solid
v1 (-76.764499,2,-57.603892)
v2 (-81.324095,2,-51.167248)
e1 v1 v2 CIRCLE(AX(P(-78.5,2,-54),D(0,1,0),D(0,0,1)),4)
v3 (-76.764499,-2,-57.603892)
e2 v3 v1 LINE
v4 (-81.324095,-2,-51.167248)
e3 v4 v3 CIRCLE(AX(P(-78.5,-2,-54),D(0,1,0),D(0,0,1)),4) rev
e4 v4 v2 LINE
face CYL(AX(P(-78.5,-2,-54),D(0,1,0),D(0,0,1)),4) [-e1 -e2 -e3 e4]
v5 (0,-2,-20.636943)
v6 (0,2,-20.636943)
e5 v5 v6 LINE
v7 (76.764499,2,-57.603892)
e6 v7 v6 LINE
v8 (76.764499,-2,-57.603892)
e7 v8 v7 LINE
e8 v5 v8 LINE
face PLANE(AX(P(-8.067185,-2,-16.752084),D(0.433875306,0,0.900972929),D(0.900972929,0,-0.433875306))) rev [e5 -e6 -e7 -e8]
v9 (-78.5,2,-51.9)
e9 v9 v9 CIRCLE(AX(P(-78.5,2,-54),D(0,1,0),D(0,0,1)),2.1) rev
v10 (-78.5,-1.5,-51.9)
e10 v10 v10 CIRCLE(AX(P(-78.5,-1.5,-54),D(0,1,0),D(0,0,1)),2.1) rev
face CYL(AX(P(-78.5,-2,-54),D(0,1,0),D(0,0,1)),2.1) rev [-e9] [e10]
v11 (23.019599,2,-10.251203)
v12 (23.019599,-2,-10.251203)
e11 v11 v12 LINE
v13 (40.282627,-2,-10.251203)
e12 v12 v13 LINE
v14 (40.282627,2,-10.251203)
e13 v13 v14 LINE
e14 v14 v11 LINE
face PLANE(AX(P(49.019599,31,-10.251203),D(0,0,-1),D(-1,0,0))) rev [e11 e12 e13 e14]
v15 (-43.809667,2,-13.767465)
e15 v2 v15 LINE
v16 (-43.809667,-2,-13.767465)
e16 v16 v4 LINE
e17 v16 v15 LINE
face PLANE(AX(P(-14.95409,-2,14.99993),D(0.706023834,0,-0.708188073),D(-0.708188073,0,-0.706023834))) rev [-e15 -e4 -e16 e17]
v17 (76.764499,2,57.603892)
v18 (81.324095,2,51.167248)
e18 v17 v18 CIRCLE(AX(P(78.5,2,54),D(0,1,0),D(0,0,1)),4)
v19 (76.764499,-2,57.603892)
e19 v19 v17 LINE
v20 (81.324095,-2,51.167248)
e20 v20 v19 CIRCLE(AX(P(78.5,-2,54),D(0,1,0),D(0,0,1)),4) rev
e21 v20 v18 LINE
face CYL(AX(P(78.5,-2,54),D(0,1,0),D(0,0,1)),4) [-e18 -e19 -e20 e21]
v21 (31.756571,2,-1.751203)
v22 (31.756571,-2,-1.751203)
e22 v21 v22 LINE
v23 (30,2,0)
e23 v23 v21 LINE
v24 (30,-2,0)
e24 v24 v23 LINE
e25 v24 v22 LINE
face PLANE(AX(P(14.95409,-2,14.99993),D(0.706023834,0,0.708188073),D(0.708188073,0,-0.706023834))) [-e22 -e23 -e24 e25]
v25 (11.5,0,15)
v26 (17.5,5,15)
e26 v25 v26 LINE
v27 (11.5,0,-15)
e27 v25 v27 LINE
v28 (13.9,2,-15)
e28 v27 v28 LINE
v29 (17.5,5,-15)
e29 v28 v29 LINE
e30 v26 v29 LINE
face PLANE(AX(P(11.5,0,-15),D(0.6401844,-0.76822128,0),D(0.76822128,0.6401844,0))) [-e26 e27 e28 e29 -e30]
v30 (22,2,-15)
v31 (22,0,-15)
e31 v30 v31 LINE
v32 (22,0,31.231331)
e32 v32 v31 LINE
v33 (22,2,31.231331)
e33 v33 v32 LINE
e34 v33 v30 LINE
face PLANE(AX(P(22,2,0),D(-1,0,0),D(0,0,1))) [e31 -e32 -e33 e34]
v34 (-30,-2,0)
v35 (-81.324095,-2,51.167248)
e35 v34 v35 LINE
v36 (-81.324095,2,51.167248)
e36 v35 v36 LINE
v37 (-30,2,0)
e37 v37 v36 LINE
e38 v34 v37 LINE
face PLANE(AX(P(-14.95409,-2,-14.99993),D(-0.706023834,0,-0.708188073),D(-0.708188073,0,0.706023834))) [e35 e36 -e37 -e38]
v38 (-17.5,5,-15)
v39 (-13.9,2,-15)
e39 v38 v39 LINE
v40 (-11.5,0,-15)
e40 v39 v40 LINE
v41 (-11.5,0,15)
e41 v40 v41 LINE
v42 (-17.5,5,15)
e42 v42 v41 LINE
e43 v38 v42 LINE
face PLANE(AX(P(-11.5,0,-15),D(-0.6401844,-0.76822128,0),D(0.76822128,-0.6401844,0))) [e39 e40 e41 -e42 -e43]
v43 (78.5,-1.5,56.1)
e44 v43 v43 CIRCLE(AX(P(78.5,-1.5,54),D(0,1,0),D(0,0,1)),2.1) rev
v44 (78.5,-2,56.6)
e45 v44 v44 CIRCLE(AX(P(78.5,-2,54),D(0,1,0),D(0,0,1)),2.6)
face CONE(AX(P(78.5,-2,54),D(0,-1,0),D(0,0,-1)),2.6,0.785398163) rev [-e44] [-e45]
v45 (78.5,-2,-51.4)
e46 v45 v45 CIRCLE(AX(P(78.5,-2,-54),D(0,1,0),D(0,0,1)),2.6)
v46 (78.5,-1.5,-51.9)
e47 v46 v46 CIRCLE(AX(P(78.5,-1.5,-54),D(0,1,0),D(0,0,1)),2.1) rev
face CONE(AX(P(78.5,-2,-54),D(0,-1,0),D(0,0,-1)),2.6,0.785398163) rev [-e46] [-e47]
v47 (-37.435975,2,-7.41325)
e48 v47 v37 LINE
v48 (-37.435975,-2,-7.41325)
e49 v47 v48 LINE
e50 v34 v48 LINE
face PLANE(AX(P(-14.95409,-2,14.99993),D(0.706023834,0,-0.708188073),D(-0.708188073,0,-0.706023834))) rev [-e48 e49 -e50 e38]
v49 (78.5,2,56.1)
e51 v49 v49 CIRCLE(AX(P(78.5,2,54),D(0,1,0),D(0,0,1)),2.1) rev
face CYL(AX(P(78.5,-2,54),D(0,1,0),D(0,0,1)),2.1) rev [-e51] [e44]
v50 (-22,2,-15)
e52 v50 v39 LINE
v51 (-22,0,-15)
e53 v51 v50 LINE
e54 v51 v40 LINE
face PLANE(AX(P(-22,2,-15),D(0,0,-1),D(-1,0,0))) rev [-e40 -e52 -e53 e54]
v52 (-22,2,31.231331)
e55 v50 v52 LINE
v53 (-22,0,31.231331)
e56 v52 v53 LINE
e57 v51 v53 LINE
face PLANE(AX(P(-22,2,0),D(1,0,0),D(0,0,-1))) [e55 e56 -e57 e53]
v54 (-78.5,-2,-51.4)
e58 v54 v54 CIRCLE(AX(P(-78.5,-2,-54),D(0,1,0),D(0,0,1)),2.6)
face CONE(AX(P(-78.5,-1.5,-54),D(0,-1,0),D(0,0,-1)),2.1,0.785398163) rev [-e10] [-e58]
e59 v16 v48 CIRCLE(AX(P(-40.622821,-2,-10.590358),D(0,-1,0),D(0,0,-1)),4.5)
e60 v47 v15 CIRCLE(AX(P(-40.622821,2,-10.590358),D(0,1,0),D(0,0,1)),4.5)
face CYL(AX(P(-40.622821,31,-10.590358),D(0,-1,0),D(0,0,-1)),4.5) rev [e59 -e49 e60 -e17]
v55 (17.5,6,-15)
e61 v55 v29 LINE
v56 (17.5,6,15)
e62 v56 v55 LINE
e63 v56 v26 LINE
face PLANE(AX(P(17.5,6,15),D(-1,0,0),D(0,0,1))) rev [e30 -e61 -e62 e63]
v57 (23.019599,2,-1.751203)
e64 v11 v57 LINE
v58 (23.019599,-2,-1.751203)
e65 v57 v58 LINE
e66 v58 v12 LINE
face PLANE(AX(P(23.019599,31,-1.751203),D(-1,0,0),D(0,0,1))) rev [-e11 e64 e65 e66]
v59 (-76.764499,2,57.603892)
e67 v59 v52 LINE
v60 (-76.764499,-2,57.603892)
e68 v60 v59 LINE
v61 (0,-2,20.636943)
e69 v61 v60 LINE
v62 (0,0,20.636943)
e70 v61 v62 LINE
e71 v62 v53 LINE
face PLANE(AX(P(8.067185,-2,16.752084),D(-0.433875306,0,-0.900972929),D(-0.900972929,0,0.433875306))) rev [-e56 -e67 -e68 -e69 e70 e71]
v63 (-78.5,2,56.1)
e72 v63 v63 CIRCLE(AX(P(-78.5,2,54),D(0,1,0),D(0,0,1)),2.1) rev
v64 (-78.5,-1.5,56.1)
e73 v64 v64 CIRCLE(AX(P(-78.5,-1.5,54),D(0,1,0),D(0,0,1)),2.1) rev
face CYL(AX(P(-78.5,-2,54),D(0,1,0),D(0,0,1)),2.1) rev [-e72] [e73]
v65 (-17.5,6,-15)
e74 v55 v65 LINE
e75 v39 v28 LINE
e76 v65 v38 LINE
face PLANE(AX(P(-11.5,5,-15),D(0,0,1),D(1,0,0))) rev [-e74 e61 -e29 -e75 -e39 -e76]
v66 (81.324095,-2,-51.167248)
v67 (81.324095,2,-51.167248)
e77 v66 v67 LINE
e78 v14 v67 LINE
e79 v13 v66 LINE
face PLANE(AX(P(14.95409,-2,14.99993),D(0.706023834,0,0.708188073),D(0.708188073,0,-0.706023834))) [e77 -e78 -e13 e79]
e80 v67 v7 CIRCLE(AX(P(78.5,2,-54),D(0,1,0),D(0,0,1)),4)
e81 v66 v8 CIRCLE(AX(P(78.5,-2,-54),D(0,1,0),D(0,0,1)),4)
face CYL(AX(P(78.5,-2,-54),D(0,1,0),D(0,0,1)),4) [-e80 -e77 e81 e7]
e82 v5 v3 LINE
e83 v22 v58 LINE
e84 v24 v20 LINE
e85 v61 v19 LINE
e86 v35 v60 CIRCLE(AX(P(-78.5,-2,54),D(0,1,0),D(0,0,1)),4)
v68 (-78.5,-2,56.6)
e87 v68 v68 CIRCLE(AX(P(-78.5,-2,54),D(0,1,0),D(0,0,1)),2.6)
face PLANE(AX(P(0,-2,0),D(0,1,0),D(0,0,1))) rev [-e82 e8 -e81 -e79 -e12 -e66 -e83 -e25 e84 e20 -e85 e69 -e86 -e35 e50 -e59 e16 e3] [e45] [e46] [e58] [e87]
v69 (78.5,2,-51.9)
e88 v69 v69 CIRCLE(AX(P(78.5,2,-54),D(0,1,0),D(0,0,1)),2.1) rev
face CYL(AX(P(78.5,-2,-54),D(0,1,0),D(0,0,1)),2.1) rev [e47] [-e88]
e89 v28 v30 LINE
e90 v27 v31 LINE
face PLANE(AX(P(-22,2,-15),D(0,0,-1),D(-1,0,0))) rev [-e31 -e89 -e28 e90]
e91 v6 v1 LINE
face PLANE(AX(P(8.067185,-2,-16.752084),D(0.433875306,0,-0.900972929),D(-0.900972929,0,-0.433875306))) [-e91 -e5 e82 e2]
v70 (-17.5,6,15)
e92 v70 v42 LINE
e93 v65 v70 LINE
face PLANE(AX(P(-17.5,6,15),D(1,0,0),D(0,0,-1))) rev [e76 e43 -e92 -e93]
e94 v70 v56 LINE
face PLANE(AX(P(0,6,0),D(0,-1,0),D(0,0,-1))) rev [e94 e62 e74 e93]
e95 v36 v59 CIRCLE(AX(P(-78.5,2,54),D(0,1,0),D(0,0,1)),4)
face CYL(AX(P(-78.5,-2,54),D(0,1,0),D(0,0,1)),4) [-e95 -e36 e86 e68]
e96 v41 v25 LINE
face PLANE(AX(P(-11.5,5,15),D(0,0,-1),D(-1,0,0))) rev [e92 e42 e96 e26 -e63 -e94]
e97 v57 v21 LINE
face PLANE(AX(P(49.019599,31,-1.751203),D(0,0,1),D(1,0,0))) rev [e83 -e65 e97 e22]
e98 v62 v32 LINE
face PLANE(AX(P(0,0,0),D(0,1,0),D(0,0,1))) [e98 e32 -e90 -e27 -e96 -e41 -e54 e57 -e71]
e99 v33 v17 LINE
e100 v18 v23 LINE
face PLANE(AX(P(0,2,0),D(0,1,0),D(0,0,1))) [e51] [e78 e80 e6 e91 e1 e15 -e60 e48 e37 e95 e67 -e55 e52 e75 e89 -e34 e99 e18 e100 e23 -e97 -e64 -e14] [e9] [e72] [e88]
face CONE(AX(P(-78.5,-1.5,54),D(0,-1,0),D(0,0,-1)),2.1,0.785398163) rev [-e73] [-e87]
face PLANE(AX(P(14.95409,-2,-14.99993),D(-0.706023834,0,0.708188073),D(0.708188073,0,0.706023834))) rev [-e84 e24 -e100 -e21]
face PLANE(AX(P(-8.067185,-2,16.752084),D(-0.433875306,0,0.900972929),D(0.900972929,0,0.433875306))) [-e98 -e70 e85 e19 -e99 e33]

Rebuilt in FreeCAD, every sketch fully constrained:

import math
import FreeCAD as App
import Part
import Sketcher
from FreeCAD import Vector


def edges_at(feature, points):
    """Names of the edges that pass closest to the given points."""
    edges = feature.Shape.Edges
    near = lambda p: min(range(len(edges)), key=lambda i: edges[i].distToShape(Part.Vertex(*p))[0])
    return sorted({f"Edge{near(p) + 1}" for p in points})

doc = App.newDocument("Part")
body = doc.addObject("PartDesign::Body", "Body")

# Sketch on XZ plane
sketch1 = body.newObject("Sketcher::SketchObject", "Sketch")
sketch1.AttachmentSupport = (doc.getObject("XZ_Plane"), [""])
sketch1.MapMode = "FlatFace"
sketch1.addGeometry([
    Part.ArcOfCircle(Part.Circle(Vector(-78.5, 54, 0), Vector(0, 0, 1), 4), math.radians(64), math.radians(225)),  # 0
    Part.LineSegment(Vector(-76.8, 57.6, 0), Vector(0, 20.6, 0)),  # 1
    Part.LineSegment(Vector(0, 20.6, 0), Vector(76.8, 57.6, 0)),  # 2
    Part.ArcOfCircle(Part.Circle(Vector(78.5, 54, 0), Vector(0, 0, 1), 4), math.radians(-45), math.radians(116)),  # 3
    Part.LineSegment(Vector(81.3, 51.2, 0), Vector(30, 0, 0)),  # 4
    Part.LineSegment(Vector(30, 0, 0), Vector(81.3, -51.2, 0)),  # 5
    Part.ArcOfCircle(Part.Circle(Vector(78.5, -54, 0), Vector(0, 0, 1), 4), math.radians(-116), math.radians(45)),  # 6
    Part.LineSegment(Vector(76.8, -57.6, 0), Vector(0, -20.6, 0)),  # 7
    Part.LineSegment(Vector(0, -20.6, 0), Vector(-76.8, -57.6, 0)),  # 8
    Part.ArcOfCircle(Part.Circle(Vector(-78.5, -54, 0), Vector(0, 0, 1), 4), math.radians(135), math.radians(296)),  # 9
    Part.LineSegment(Vector(-81.3, -51.2, 0), Vector(-30, 0, 0)),  # 10
    Part.LineSegment(Vector(-30, 0, 0), Vector(-81.3, 51.2, 0)),  # 11
    Part.Circle(Vector(-78.5, 54, 0), Vector(0, 0, 1), 2.1),  # 12
    Part.Circle(Vector(78.5, 54, 0), Vector(0, 0, 1), 2.1),  # 13
    Part.Circle(Vector(78.5, -54, 0), Vector(0, 0, 1), 2.1),  # 14
    Part.Circle(Vector(-78.5, -54, 0), Vector(0, 0, 1), 2.1),  # 15
], False)
sketch1.addConstraint([
    Sketcher.Constraint("Tangent", 0, 1, 1, 1),
    Sketcher.Constraint("Coincident", 1, 2, 2, 1),
    Sketcher.Constraint("Tangent", 2, 2, 3, 2),
    Sketcher.Constraint("Tangent", 3, 1, 4, 1),
    Sketcher.Constraint("Coincident", 4, 2, 5, 1),
    Sketcher.Constraint("Tangent", 5, 2, 6, 2),
    Sketcher.Constraint("Tangent", 6, 1, 7, 1),
    Sketcher.Constraint("Coincident", 7, 2, 8, 1),
    Sketcher.Constraint("Tangent", 8, 2, 9, 2),
    Sketcher.Constraint("Tangent", 9, 1, 10, 1),
    Sketcher.Constraint("Coincident", 10, 2, 11, 1),
    Sketcher.Constraint("Tangent", 11, 2, 0, 2),
    Sketcher.Constraint("Coincident", 12, 3, 0, 3),
    Sketcher.Constraint("Coincident", 13, 3, 3, 3),
    Sketcher.Constraint("Coincident", 14, 3, 6, 3),
    Sketcher.Constraint("Coincident", 15, 3, 9, 3),
    Sketcher.Constraint("Equal", 0, 3),
    Sketcher.Constraint("Equal", 3, 6),
    Sketcher.Constraint("Equal", 6, 9),
    Sketcher.Constraint("Equal", 12, 13),
    Sketcher.Constraint("Equal", 13, 14),
    Sketcher.Constraint("Equal", 14, 15),
    Sketcher.Constraint("Symmetric", 0, 3, 6, 3, -1, 1),
    Sketcher.Constraint("Symmetric", 3, 3, 9, 3, -1, 1),
    Sketcher.Constraint("Symmetric", 1, 2, 7, 2, -1, 1),
    Sketcher.Constraint("Symmetric", 4, 2, 10, 2, -1, 1),
    Sketcher.Constraint("Symmetric", 0, 3, 3, 3, -2),
    Sketcher.Constraint("PointOnObject", 1, 2, -2),
    Sketcher.Constraint("PointOnObject", 4, 2, -1),
    Sketcher.Constraint("Radius", 0, 4.0),
    Sketcher.Constraint("Diameter", 12, 4.2),
    Sketcher.Constraint("DistanceY", -1, 1, 0, 3, 54.0),
    Sketcher.Constraint("DistanceX", -1, 1, 4, 2, 30.0),
    Sketcher.Constraint("DistanceX", 0, 3, 3, 3, 157.0),
    Sketcher.Constraint("DistanceX", 0, 1, -1, 1, 76.764499),
])
pad1 = body.newObject("PartDesign::Pad", "Pad")
pad1.Profile = sketch1
pad1.Length = 2

# Sketch on XZ plane
sketch2 = body.newObject("Sketcher::SketchObject", "Sketch001")
sketch2.AttachmentSupport = (doc.getObject("XZ_Plane"), [""])
sketch2.MapMode = "FlatFace"
sketch2.addGeometry([
    Part.LineSegment(Vector(12, -15, 0), Vector(-12, -15, 0)),
    Part.LineSegment(Vector(-12, -15, 0), Vector(-12, 15, 0)),
    Part.LineSegment(Vector(-12, 15, 0), Vector(12, 15, 0)),
    Part.LineSegment(Vector(12, 15, 0), Vector(12, -15, 0)),
], False)
sketch2.addConstraint([
    Sketcher.Constraint("Coincident", 0, 2, 1, 1),
    Sketcher.Constraint("Coincident", 1, 2, 2, 1),
    Sketcher.Constraint("Coincident", 2, 2, 3, 1),
    Sketcher.Constraint("Coincident", 3, 2, 0, 1),
    Sketcher.Constraint("Horizontal", 0),
    Sketcher.Constraint("Vertical", 1),
    Sketcher.Constraint("Horizontal", 2),
    Sketcher.Constraint("Vertical", 3),
    Sketcher.Constraint("Symmetric", 0, 2, 2, 2, -1, 1),
    Sketcher.Constraint("DistanceX", 0, 2, 0, 1, 23.0),
    Sketcher.Constraint("DistanceY", 1, 1, 1, 2, 30.0),
])
pad2 = body.newObject("PartDesign::Pad", "Pad001")
pad2.Profile = sketch2
pad2.Length = 5
pad2.Reversed = True

# Sketch on XZ plane
sketch3 = body.newObject("Sketcher::SketchObject", "Sketch002")
sketch3.AttachmentSupport = (doc.getObject("XZ_Plane"), [""])
sketch3.MapMode = "FlatFace"
sketch3.AttachmentOffset = App.Placement(Vector(0, 0, -5), App.Rotation())
sketch3.addGeometry([
    Part.LineSegment(Vector(-18, -15, 0), Vector(-18, 15, 0)),
    Part.LineSegment(Vector(-18, 15, 0), Vector(18, 15, 0)),
    Part.LineSegment(Vector(18, 15, 0), Vector(18, -15, 0)),
    Part.LineSegment(Vector(18, -15, 0), Vector(-18, -15, 0)),
], False)
sketch3.addConstraint([
    Sketcher.Constraint("Coincident", 0, 2, 1, 1),
    Sketcher.Constraint("Coincident", 1, 2, 2, 1),
    Sketcher.Constraint("Coincident", 2, 2, 3, 1),
    Sketcher.Constraint("Coincident", 3, 2, 0, 1),
    Sketcher.Constraint("Vertical", 0),
    Sketcher.Constraint("Horizontal", 1),
    Sketcher.Constraint("Vertical", 2),
    Sketcher.Constraint("Horizontal", 3),
    Sketcher.Constraint("Symmetric", 0, 2, 2, 2, -1, 1),
    Sketcher.Constraint("DistanceX", 1, 1, 1, 2, 35.0),
    Sketcher.Constraint("DistanceY", 0, 1, 0, 2, 30.0),
])
pad3 = body.newObject("PartDesign::Pad", "Pad002")
pad3.Profile = sketch3
pad3.Length = 1
pad3.Reversed = True

# Sketch on XY plane
sketch4 = body.newObject("Sketcher::SketchObject", "Sketch003")
sketch4.AttachmentSupport = (doc.getObject("XY_Plane"), [""])
sketch4.MapMode = "FlatFace"
sketch4.AttachmentOffset = App.Placement(Vector(0, 0, 15), App.Rotation())
sketch4.addGeometry([
    Part.LineSegment(Vector(12, 0, 0), Vector(18, 5, 0)),  # 0
    Part.LineSegment(Vector(18, 5, 0), Vector(12, 5, 0)),  # 1
    Part.LineSegment(Vector(12, 5, 0), Vector(12, 0, 0)),  # 2
    Part.LineSegment(Vector(-12, 5, 0), Vector(-18, 5, 0)),  # 3
    Part.LineSegment(Vector(-18, 5, 0), Vector(-12, 0, 0)),  # 4
    Part.LineSegment(Vector(-12, 0, 0), Vector(-12, 5, 0)),  # 5
], False)
sketch4.addConstraint([
    Sketcher.Constraint("Coincident", 0, 2, 1, 1),
    Sketcher.Constraint("Coincident", 1, 2, 2, 1),
    Sketcher.Constraint("Coincident", 2, 2, 0, 1),
    Sketcher.Constraint("Coincident", 3, 2, 4, 1),
    Sketcher.Constraint("Coincident", 4, 2, 5, 1),
    Sketcher.Constraint("Coincident", 5, 2, 3, 1),
    Sketcher.Constraint("Horizontal", 1),
    Sketcher.Constraint("Vertical", 2),
    Sketcher.Constraint("Horizontal", 3),
    Sketcher.Constraint("Vertical", 5),
    Sketcher.Constraint("Symmetric", 2, 2, 4, 2, -1, 1),
    Sketcher.Constraint("Symmetric", 0, 2, 3, 2, -2),
    Sketcher.Constraint("PointOnObject", 2, 2, -1),
    Sketcher.Constraint("DistanceX", 1, 2, 1, 1, 6.0),
    Sketcher.Constraint("DistanceY", 2, 2, 2, 1, 5.0),
    Sketcher.Constraint("DistanceX", 3, 2, 1, 2, 29.0),
])
pad4 = body.newObject("PartDesign::Pad", "Pad003")
pad4.Profile = sketch4
pad4.Length = 30
pad4.Reversed = True

# Sketch on XZ plane
sketch5 = body.newObject("Sketcher::SketchObject", "Sketch004")
sketch5.AttachmentSupport = (doc.getObject("XZ_Plane"), [""])
sketch5.MapMode = "FlatFace"
sketch5.AttachmentOffset = App.Placement(Vector(0, 0, -2), App.Rotation())
sketch5.addGeometry([
    Part.LineSegment(Vector(-22, 31.2, 0), Vector(-22, -15, 0)),  # 0
    Part.LineSegment(Vector(-22, -15, 0), Vector(22, -15, 0)),  # 1
    Part.LineSegment(Vector(22, -15, 0), Vector(22, 31.2, 0)),  # 2
    Part.LineSegment(Vector(22, 31.2, 0), Vector(76.8, 57.6, 0)),  # 3
    Part.ArcOfCircle(Part.Circle(Vector(78.5, 54, 0), Vector(0, 0, 1), 4), math.radians(-45), math.radians(116)),  # 4
    Part.LineSegment(Vector(81.3, 51.2, 0), Vector(30, 0, 0)),  # 5
    Part.LineSegment(Vector(30, 0, 0), Vector(81.3, -51.2, 0)),  # 6
    Part.ArcOfCircle(Part.Circle(Vector(78.5, -54, 0), Vector(0, 0, 1), 4), math.radians(-116), math.radians(45)),  # 7
    Part.LineSegment(Vector(76.8, -57.6, 0), Vector(0, -20.6, 0)),  # 8
    Part.LineSegment(Vector(0, -20.6, 0), Vector(-76.8, -57.6, 0)),  # 9
    Part.ArcOfCircle(Part.Circle(Vector(-78.5, -54, 0), Vector(0, 0, 1), 4), math.radians(135), math.radians(296)),  # 10
    Part.LineSegment(Vector(-81.3, -51.2, 0), Vector(-30, 0, 0)),  # 11
    Part.LineSegment(Vector(-30, 0, 0), Vector(-81.3, 51.2, 0)),  # 12
    Part.ArcOfCircle(Part.Circle(Vector(-78.5, 54, 0), Vector(0, 0, 1), 4), math.radians(64), math.radians(225)),  # 13
    Part.LineSegment(Vector(-76.8, 57.6, 0), Vector(-22, 31.2, 0)),  # 14
    Part.Circle(Vector(-78.5, 54, 0), Vector(0, 0, 1), 2.1),  # 15
    Part.Circle(Vector(78.5, 54, 0), Vector(0, 0, 1), 2.1),  # 16
    Part.Circle(Vector(-78.5, -54, 0), Vector(0, 0, 1), 2.1),  # 17
    Part.Circle(Vector(78.5, -54, 0), Vector(0, 0, 1), 2.1),  # 18
], False)
sketch5.addConstraint([
    Sketcher.Constraint("Coincident", 0, 2, 1, 1),
    Sketcher.Constraint("Coincident", 1, 2, 2, 1),
    Sketcher.Constraint("Coincident", 2, 2, 3, 1),
    Sketcher.Constraint("Tangent", 3, 2, 4, 2),
    Sketcher.Constraint("Tangent", 4, 1, 5, 1),
    Sketcher.Constraint("Coincident", 5, 2, 6, 1),
    Sketcher.Constraint("Tangent", 6, 2, 7, 2),
    Sketcher.Constraint("Tangent", 7, 1, 8, 1),
    Sketcher.Constraint("Coincident", 8, 2, 9, 1),
    Sketcher.Constraint("Tangent", 9, 2, 10, 2),
    Sketcher.Constraint("Tangent", 10, 1, 11, 1),
    Sketcher.Constraint("Coincident", 11, 2, 12, 1),
    Sketcher.Constraint("Tangent", 12, 2, 13, 2),
    Sketcher.Constraint("Tangent", 13, 1, 14, 1),
    Sketcher.Constraint("Coincident", 14, 2, 0, 1),
    Sketcher.Constraint("Vertical", 0),
    Sketcher.Constraint("Horizontal", 1),
    Sketcher.Constraint("Vertical", 2),
    Sketcher.Constraint("Coincident", 15, 3, 13, 3),
    Sketcher.Constraint("Coincident", 16, 3, 4, 3),
    Sketcher.Constraint("Coincident", 17, 3, 10, 3),
    Sketcher.Constraint("Coincident", 18, 3, 7, 3),
    Sketcher.Constraint("Equal", 4, 7),
    Sketcher.Constraint("Equal", 7, 10),
    Sketcher.Constraint("Equal", 10, 13),
    Sketcher.Constraint("Equal", 15, 16),
    Sketcher.Constraint("Equal", 16, 17),
    Sketcher.Constraint("Equal", 17, 18),
    Sketcher.Constraint("Symmetric", 4, 3, 10, 3, -1, 1),
    Sketcher.Constraint("Symmetric", 7, 3, 13, 3, -1, 1),
    Sketcher.Constraint("Symmetric", 5, 2, 11, 2, -1, 1),
    Sketcher.Constraint("Symmetric", 7, 3, 10, 3, -2),
    Sketcher.Constraint("Symmetric", 2, 2, 14, 2, -2),
    Sketcher.Constraint("PointOnObject", 5, 2, -1),
    Sketcher.Constraint("PointOnObject", 8, 2, -2),
    Sketcher.Constraint("Parallel", 3, 9),
    Sketcher.Constraint("Radius", 4, 4.0),
    Sketcher.Constraint("Diameter", 15, 4.2),
    Sketcher.Constraint("DistanceX", 1, 1, 1, 2, 44.0),
    Sketcher.Constraint("DistanceY", -1, 1, 4, 3, 54.0),
    Sketcher.Constraint("DistanceY", 0, 2, -1, 1, 15.0),
    Sketcher.Constraint("DistanceX", -1, 1, 5, 2, 30.0),
    Sketcher.Constraint("DistanceX", 10, 3, 7, 3, 157.0),
    Sketcher.Constraint("DistanceY", 0, 2, 0, 1, 46.231331),
])
pad5 = body.newObject("PartDesign::Pad", "Pad004")
pad5.Profile = sketch5
pad5.Length = 2

# Sketch on XZ plane
sketch6 = body.newObject("Sketcher::SketchObject", "Sketch005")
sketch6.AttachmentSupport = (doc.getObject("XZ_Plane"), [""])
sketch6.MapMode = "FlatFace"
sketch6.AttachmentOffset = App.Placement(Vector(0, 0, 2), App.Rotation())
sketch6.addGeometry([
    Part.Circle(Vector(-40.6, -10.6, 0), Vector(0, 0, 1), 4.5),  # 0
    Part.LineSegment(Vector(49, -1.8, 0), Vector(23, -1.8, 0)),  # 1
    Part.LineSegment(Vector(23, -1.8, 0), Vector(23, -10.3, 0)),  # 2
    Part.LineSegment(Vector(23, -10.3, 0), Vector(49, -10.3, 0)),  # 3
    Part.LineSegment(Vector(49, -10.3, 0), Vector(49, -1.8, 0)),  # 4
], False)
sketch6.addConstraint([
    Sketcher.Constraint("Coincident", 1, 2, 2, 1),
    Sketcher.Constraint("Coincident", 2, 2, 3, 1),
    Sketcher.Constraint("Coincident", 3, 2, 4, 1),
    Sketcher.Constraint("Coincident", 4, 2, 1, 1),
    Sketcher.Constraint("Horizontal", 1),
    Sketcher.Constraint("Vertical", 2),
    Sketcher.Constraint("Horizontal", 3),
    Sketcher.Constraint("Vertical", 4),
    Sketcher.Constraint("Diameter", 0, 9.0),
    Sketcher.Constraint("DistanceX", 1, 2, 1, 1, 26.0),
    Sketcher.Constraint("DistanceY", 2, 2, 2, 1, 8.5),
    Sketcher.Constraint("DistanceX", -1, 1, 1, 2, 23.019599),
    Sketcher.Constraint("DistanceX", 0, 3, -1, 1, 40.622821),
    Sketcher.Constraint("DistanceY", 0, 3, -1, 1, 10.590358),
    Sketcher.Constraint("DistanceY", 1, 2, -1, 1, 1.751203),
])
pocket1 = body.newObject("PartDesign::Pocket", "Pocket")
pocket1.Profile = sketch6
pocket1.Length = 33
doc.recompute()

chamfer = body.newObject("PartDesign::Chamfer", "Chamfer")
chamfer.Base = (pocket1, edges_at(pocket1, [
    (-78.5, -2, -56.1),
    (-80.6, -2, 54),
    (78.5, -2, -56.1),
    (80.6, -2, 54),
]))
chamfer.Size = 0.5

doc.recompute()
